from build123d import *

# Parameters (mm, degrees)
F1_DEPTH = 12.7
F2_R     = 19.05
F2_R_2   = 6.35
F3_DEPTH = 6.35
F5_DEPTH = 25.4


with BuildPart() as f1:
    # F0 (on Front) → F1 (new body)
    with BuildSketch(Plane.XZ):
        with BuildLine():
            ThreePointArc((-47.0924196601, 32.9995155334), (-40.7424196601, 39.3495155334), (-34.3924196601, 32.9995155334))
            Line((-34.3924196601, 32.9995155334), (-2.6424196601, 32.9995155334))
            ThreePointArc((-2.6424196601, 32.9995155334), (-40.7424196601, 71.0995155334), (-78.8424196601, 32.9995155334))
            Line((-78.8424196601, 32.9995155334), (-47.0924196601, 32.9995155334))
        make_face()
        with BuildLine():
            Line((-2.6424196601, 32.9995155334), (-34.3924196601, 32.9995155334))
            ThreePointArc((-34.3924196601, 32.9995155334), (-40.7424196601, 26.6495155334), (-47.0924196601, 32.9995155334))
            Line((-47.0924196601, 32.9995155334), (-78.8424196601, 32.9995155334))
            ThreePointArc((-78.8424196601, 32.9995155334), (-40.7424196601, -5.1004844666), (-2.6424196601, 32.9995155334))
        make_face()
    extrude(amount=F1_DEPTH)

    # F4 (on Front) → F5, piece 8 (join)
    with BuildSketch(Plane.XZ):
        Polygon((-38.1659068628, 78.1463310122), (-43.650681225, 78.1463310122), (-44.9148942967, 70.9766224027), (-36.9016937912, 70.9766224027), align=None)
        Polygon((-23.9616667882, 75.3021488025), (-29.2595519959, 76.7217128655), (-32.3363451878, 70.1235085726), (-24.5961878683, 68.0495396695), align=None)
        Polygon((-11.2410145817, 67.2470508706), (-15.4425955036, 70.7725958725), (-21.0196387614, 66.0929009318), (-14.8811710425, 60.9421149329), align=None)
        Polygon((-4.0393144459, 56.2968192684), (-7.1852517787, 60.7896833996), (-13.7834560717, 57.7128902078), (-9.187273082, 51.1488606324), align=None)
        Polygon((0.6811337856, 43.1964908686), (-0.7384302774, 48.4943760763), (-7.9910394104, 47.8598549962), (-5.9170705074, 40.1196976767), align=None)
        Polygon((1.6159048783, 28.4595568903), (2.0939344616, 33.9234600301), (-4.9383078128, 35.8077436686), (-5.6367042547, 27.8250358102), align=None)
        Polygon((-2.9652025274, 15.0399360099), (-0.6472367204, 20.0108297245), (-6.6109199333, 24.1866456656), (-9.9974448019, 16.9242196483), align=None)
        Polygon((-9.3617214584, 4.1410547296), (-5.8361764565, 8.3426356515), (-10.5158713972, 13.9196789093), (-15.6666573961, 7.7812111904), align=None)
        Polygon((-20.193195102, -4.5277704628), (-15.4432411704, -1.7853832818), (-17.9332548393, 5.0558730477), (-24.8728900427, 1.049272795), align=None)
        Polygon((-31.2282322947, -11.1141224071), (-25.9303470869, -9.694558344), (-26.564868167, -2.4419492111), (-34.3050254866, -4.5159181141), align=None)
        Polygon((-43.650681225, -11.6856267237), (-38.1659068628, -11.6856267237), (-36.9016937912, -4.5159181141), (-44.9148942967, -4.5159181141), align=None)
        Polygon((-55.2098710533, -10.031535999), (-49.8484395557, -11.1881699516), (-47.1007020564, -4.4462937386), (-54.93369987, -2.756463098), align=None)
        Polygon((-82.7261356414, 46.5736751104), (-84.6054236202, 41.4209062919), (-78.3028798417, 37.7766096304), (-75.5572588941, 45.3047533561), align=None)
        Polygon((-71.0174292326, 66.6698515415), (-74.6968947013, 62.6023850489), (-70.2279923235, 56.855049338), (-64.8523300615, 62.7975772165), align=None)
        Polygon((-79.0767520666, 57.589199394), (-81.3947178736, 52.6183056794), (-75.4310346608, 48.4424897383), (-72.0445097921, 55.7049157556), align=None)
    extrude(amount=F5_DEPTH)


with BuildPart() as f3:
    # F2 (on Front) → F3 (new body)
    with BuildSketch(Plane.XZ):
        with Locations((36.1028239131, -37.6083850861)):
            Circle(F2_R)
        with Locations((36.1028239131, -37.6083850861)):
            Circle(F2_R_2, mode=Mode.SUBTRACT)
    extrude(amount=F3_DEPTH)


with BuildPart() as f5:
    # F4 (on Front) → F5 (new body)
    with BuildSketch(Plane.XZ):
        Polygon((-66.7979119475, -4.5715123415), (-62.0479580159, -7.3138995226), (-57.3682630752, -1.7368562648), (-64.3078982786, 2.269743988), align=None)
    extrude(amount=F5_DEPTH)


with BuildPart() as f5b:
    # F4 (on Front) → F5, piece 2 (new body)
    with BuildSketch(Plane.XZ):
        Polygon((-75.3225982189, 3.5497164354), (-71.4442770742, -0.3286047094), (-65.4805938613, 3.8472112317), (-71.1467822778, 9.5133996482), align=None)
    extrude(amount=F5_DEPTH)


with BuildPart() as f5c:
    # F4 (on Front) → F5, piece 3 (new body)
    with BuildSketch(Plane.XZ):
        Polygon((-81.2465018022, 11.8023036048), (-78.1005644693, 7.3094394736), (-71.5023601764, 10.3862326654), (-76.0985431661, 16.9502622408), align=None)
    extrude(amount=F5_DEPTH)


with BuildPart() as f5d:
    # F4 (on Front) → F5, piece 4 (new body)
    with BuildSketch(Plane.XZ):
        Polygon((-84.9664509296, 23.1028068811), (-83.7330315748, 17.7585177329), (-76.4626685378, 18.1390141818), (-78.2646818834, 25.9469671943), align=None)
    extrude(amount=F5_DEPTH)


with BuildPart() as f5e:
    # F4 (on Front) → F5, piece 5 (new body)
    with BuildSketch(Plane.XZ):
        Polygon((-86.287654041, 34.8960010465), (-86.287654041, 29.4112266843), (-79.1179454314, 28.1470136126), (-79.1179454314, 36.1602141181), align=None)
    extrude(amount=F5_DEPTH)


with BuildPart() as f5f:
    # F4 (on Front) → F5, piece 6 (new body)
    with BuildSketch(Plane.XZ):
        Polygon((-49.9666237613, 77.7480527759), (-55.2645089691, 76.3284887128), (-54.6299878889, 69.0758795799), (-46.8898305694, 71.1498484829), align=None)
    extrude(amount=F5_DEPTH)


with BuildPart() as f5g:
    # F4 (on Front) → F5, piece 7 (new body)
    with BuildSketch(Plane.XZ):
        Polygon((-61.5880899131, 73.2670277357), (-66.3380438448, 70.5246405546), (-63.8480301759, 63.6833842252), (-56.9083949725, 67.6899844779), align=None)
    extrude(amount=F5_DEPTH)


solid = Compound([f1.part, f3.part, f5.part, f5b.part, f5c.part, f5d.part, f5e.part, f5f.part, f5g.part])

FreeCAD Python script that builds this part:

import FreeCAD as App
import Part
import Sketcher
Q = App.Units.Quantity

doc = App.newDocument("Part")
body = doc.addObject("PartDesign::Body", "Body")

sketch1 = doc.addObject("Sketcher::SketchObject", "Sketch")
body.addObject(sketch1)
sketch1.AttachmentSupport = (doc.XZ_Plane, [""])
sketch1.MapMode = "FlatFace"
sketch1.addGeometry(Part.Circle(App.Vector(-41, 33, 0), App.Vector(0, 0, 1), 38), False)
sketch1.addGeometry(Part.Circle(App.Vector(-41, 33, 0), App.Vector(0, 0, 1), 6), False)
sketch1.addConstraint(Sketcher.Constraint("Coincident", 1, 3, 0, 3))
sketch1.addConstraint(Sketcher.Constraint("Diameter", 0, Q("3 in")))
sketch1.addConstraint(Sketcher.Constraint("Diameter", 1, Q("0.5 in")))
sketch1.addConstraint(Sketcher.Constraint("DistanceX", 0, 3, -1, 1, 40.74242))
sketch1.addConstraint(Sketcher.Constraint("DistanceY", -1, 1, 0, 3, 32.999516))
pad1 = doc.addObject("PartDesign::Pad", "Pad")
body.addObject(pad1)
pad1.Profile = sketch1
pad1.Length = Q("0.5 in")

sketch2 = doc.addObject("Sketcher::SketchObject", "Sketch001")
body.addObject(sketch2)
sketch2.AttachmentSupport = (doc.XZ_Plane, [""])
sketch2.MapMode = "FlatFace"
sketch2.addGeometry(Part.LineSegment(App.Vector(-38.165907, 78.146331, 0), App.Vector(-43.650681, 78.146331, 0)), False)
sketch2.addGeometry(Part.LineSegment(App.Vector(-43.650681, 78.146331, 0), App.Vector(-44.914894, 70.976622, 0)), False)
sketch2.addGeometry(Part.LineSegment(App.Vector(-44.914894, 70.976622, 0), App.Vector(-36.901694, 70.976622, 0)), False)
sketch2.addGeometry(Part.LineSegment(App.Vector(-36.901694, 70.976622, 0), App.Vector(-38.165907, 78.146331, 0)), False)
sketch2.addGeometry(Part.LineSegment(App.Vector(-23.961667, 75.302149, 0), App.Vector(-29.259552, 76.721713, 0)), False)
sketch2.addGeometry(Part.LineSegment(App.Vector(-29.259552, 76.721713, 0), App.Vector(-32.336345, 70.123509, 0)), False)
sketch2.addGeometry(Part.LineSegment(App.Vector(-32.336345, 70.123509, 0), App.Vector(-24.596188, 68.04954, 0)), False)
sketch2.addGeometry(Part.LineSegment(App.Vector(-24.596188, 68.04954, 0), App.Vector(-23.961667, 75.302149, 0)), False)
sketch2.addGeometry(Part.LineSegment(App.Vector(-11.241015, 67.247051, 0), App.Vector(-15.442596, 70.772596, 0)), False)
sketch2.addGeometry(Part.LineSegment(App.Vector(-15.442596, 70.772596, 0), App.Vector(-21.019639, 66.092901, 0)), False)
sketch2.addGeometry(Part.LineSegment(App.Vector(-21.019639, 66.092901, 0), App.Vector(-14.881171, 60.942115, 0)), False)
sketch2.addGeometry(Part.LineSegment(App.Vector(-14.881171, 60.942115, 0), App.Vector(-11.241015, 67.247051, 0)), False)
sketch2.addGeometry(Part.LineSegment(App.Vector(-4.039314, 56.296819, 0), App.Vector(-7.185252, 60.789683, 0)), False)
sketch2.addGeometry(Part.LineSegment(App.Vector(-7.185252, 60.789683, 0), App.Vector(-13.783456, 57.71289, 0)), False)
sketch2.addGeometry(Part.LineSegment(App.Vector(-13.783456, 57.71289, 0), App.Vector(-9.187273, 51.148861, 0)), False)
sketch2.addGeometry(Part.LineSegment(App.Vector(-9.187273, 51.148861, 0), App.Vector(-4.039314, 56.296819, 0)), False)
sketch2.addGeometry(Part.LineSegment(App.Vector(0.681134, 43.196491, 0), App.Vector(-0.73843, 48.494376, 0)), False)
sketch2.addGeometry(Part.LineSegment(App.Vector(-0.73843, 48.494376, 0), App.Vector(-7.991039, 47.859855, 0)), False)
sketch2.addGeometry(Part.LineSegment(App.Vector(-7.991039, 47.859855, 0), App.Vector(-5.917071, 40.119698, 0)), False)
sketch2.addGeometry(Part.LineSegment(App.Vector(-5.917071, 40.119698, 0), App.Vector(0.681134, 43.196491, 0)), False)
sketch2.addGeometry(Part.LineSegment(App.Vector(1.615905, 28.459557, 0), App.Vector(2.093934, 33.92346, 0)), False)
sketch2.addGeometry(Part.LineSegment(App.Vector(2.093934, 33.92346, 0), App.Vector(-4.938308, 35.807744, 0)), False)
sketch2.addGeometry(Part.LineSegment(App.Vector(-4.938308, 35.807744, 0), App.Vector(-5.636704, 27.825036, 0)), False)
sketch2.addGeometry(Part.LineSegment(App.Vector(-5.636704, 27.825036, 0), App.Vector(1.615905, 28.459557, 0)), False)
sketch2.addGeometry(Part.LineSegment(App.Vector(-2.965203, 15.039936, 0), App.Vector(-0.647237, 20.01083, 0)), False)
sketch2.addGeometry(Part.LineSegment(App.Vector(-0.647237, 20.01083, 0), App.Vector(-6.61092, 24.186646, 0)), False)
sketch2.addGeometry(Part.LineSegment(App.Vector(-6.61092, 24.186646, 0), App.Vector(-9.997445, 16.92422, 0)), False)
sketch2.addGeometry(Part.LineSegment(App.Vector(-9.997445, 16.92422, 0), App.Vector(-2.965203, 15.039936, 0)), False)
sketch2.addGeometry(Part.LineSegment(App.Vector(-9.361721, 4.141055, 0), App.Vector(-5.836176, 8.342636, 0)), False)
sketch2.addGeometry(Part.LineSegment(App.Vector(-5.836176, 8.342636, 0), App.Vector(-10.515871, 13.919679, 0)), False)
sketch2.addGeometry(Part.LineSegment(App.Vector(-10.515871, 13.919679, 0), App.Vector(-15.666657, 7.781211, 0)), False)
sketch2.addGeometry(Part.LineSegment(App.Vector(-15.666657, 7.781211, 0), App.Vector(-9.361721, 4.141055, 0)), False)
sketch2.addGeometry(Part.LineSegment(App.Vector(-20.193195, -4.52777, 0), App.Vector(-15.443241, -1.785383, 0)), False)
sketch2.addGeometry(Part.LineSegment(App.Vector(-15.443241, -1.785383, 0), App.Vector(-17.933255, 5.055873, 0)), False)
sketch2.addGeometry(Part.LineSegment(App.Vector(-17.933255, 5.055873, 0), App.Vector(-24.87289, 1.049273, 0)), False)
sketch2.addGeometry(Part.LineSegment(App.Vector(-24.87289, 1.049273, 0), App.Vector(-20.193195, -4.52777, 0)), False)
sketch2.addGeometry(Part.LineSegment(App.Vector(-31.228232, -11.114122, 0), App.Vector(-25.930347, -9.694558, 0)), False)
sketch2.addGeometry(Part.LineSegment(App.Vector(-25.930347, -9.694558, 0), App.Vector(-26.564868, -2.441949, 0)), False)
sketch2.addGeometry(Part.LineSegment(App.Vector(-26.564868, -2.441949, 0), App.Vector(-34.305025, -4.515918, 0)), False)
sketch2.addGeometry(Part.LineSegment(App.Vector(-34.305025, -4.515918, 0), App.Vector(-31.228232, -11.114122, 0)), False)
sketch2.addGeometry(Part.LineSegment(App.Vector(-43.650681, -11.685627, 0), App.Vector(-38.165907, -11.685627, 0)), False)
sketch2.addGeometry(Part.LineSegment(App.Vector(-38.165907, -11.685627, 0), App.Vector(-36.901694, -4.515918, 0)), False)
sketch2.addGeometry(Part.LineSegment(App.Vector(-36.901694, -4.515918, 0), App.Vector(-44.914894, -4.515918, 0)), False)
sketch2.addGeometry(Part.LineSegment(App.Vector(-44.914894, -4.515918, 0), App.Vector(-43.650681, -11.685627, 0)), False)
sketch2.addGeometry(Part.LineSegment(App.Vector(-55.209871, -10.031536, 0), App.Vector(-49.84844, -11.18817, 0)), False)
sketch2.addGeometry(Part.LineSegment(App.Vector(-49.84844, -11.18817, 0), App.Vector(-47.100702, -4.446294, 0)), False)
sketch2.addGeometry(Part.LineSegment(App.Vector(-47.100702, -4.446294, 0), App.Vector(-54.9337, -2.756463, 0)), False)
sketch2.addGeometry(Part.LineSegment(App.Vector(-54.9337, -2.756463, 0), App.Vector(-55.209871, -10.031536, 0)), False)
sketch2.addGeometry(Part.LineSegment(App.Vector(-82.726136, 46.573675, 0), App.Vector(-84.605424, 41.420906, 0)), False)
sketch2.addGeometry(Part.LineSegment(App.Vector(-84.605424, 41.420906, 0), App.Vector(-78.30288, 37.77661, 0)), False)
sketch2.addGeometry(Part.LineSegment(App.Vector(-78.30288, 37.77661, 0), App.Vector(-75.557259, 45.304753, 0)), False)
sketch2.addGeometry(Part.LineSegment(App.Vector(-75.557259, 45.304753, 0), App.Vector(-82.726136, 46.573675, 0)), False)
sketch2.addGeometry(Part.LineSegment(App.Vector(-71.017429, 66.669852, 0), App.Vector(-74.696895, 62.602385, 0)), False)
sketch2.addGeometry(Part.LineSegment(App.Vector(-74.696895, 62.602385, 0), App.Vector(-70.227992, 56.855049, 0)), False)
sketch2.addGeometry(Part.LineSegment(App.Vector(-70.227992, 56.855049, 0), App.Vector(-64.85233, 62.797577, 0)), False)
sketch2.addGeometry(Part.LineSegment(App.Vector(-64.85233, 62.797577, 0), App.Vector(-71.017429, 66.669852, 0)), False)
sketch2.addGeometry(Part.LineSegment(App.Vector(-79.076752, 57.589199, 0), App.Vector(-81.394718, 52.618306, 0)), False)
sketch2.addGeometry(Part.LineSegment(App.Vector(-81.394718, 52.618306, 0), App.Vector(-75.431035, 48.44249, 0)), False)
sketch2.addGeometry(Part.LineSegment(App.Vector(-75.431035, 48.44249, 0), App.Vector(-72.04451, 55.704916, 0)), False)
sketch2.addGeometry(Part.LineSegment(App.Vector(-72.04451, 55.704916, 0), App.Vector(-79.076752, 57.589199, 0)), False)
sketch2.addConstraint(Sketcher.Constraint("Coincident", 0, 2, 1, 1))
sketch2.addConstraint(Sketcher.Constraint("Coincident", 1, 2, 2, 1))
sketch2.addConstraint(Sketcher.Constraint("Coincident", 2, 2, 3, 1))
sketch2.addConstraint(Sketcher.Constraint("Coincident", 3, 2, 0, 1))
sketch2.addConstraint(Sketcher.Constraint("Coincident", 4, 2, 5, 1))
sketch2.addConstraint(Sketcher.Constraint("Coincident", 5, 2, 6, 1))
sketch2.addConstraint(Sketcher.Constraint("Coincident", 6, 2, 7, 1))
sketch2.addConstraint(Sketcher.Constraint("Coincident", 7, 2, 4, 1))
sketch2.addConstraint(Sketcher.Constraint("Coincident", 8, 2, 9, 1))
sketch2.addConstraint(Sketcher.Constraint("Coincident", 9, 2, 10, 1))
sketch2.addConstraint(Sketcher.Constraint("Coincident", 10, 2, 11, 1))
sketch2.addConstraint(Sketcher.Constraint("Coincident", 11, 2, 8, 1))
sketch2.addConstraint(Sketcher.Constraint("Coincident", 12, 2, 13, 1))
sketch2.addConstraint(Sketcher.Constraint("Coincident", 13, 2, 14, 1))
sketch2.addConstraint(Sketcher.Constraint("Coincident", 14, 2, 15, 1))
sketch2.addConstraint(Sketcher.Constraint("Coincident", 15, 2, 12, 1))
sketch2.addConstraint(Sketcher.Constraint("Coincident", 16, 2, 17, 1))
sketch2.addConstraint(Sketcher.Constraint("Coincident", 17, 2, 18, 1))
sketch2.addConstraint(Sketcher.Constraint("Coincident", 18, 2, 19, 1))
sketch2.addConstraint(Sketcher.Constraint("Coincident", 19, 2, 16, 1))
sketch2.addConstraint(Sketcher.Constraint("Coincident", 20, 2, 21, 1))
sketch2.addConstraint(Sketcher.Constraint("Coincident", 21, 2, 22, 1))
sketch2.addConstraint(Sketcher.Constraint("Coincident", 22, 2, 23, 1))
sketch2.addConstraint(Sketcher.Constraint("Coincident", 23, 2, 20, 1))
sketch2.addConstraint(Sketcher.Constraint("Coincident", 24, 2, 25, 1))
sketch2.addConstraint(Sketcher.Constraint("Coincident", 25, 2, 26, 1))
sketch2.addConstraint(Sketcher.Constraint("Coincident", 26, 2, 27, 1))
sketch2.addConstraint(Sketcher.Constraint("Coincident", 27, 2, 24, 1))
sketch2.addConstraint(Sketcher.Constraint("Coincident", 28, 2, 29, 1))
sketch2.addConstraint(Sketcher.Constraint("Coincident", 29, 2, 30, 1))
sketch2.addConstraint(Sketcher.Constraint("Coincident", 30, 2, 31, 1))
sketch2.addConstraint(Sketcher.Constraint("Coincident", 31, 2, 28, 1))
sketch2.addConstraint(Sketcher.Constraint("Coincident", 32, 2, 33, 1))
sketch2.addConstraint(Sketcher.Constraint("Coincident", 33, 2, 34, 1))
sketch2.addConstraint(Sketcher.Constraint("Coincident", 34, 2, 35, 1))
sketch2.addConstraint(Sketcher.Constraint("Coincident", 35, 2, 32, 1))
sketch2.addConstraint(Sketcher.Constraint("Coincident", 36, 2, 37, 1))
sketch2.addConstraint(Sketcher.Constraint("Coincident", 37, 2, 38, 1))
sketch2.addConstraint(Sketcher.Constraint("Coincident", 38, 2, 39, 1))
sketch2.addConstraint(Sketcher.Constraint("Coincident", 39, 2, 36, 1))
sketch2.addConstraint(Sketcher.Constraint("Coincident", 40, 2, 41, 1))
sketch2.addConstraint(Sketcher.Constraint("Coincident", 41, 2, 42, 1))
sketch2.addConstraint(Sketcher.Constraint("Coincident", 42, 2, 43, 1))
sketch2.addConstraint(Sketcher.Constraint("Coincident", 43, 2, 40, 1))
sketch2.addConstraint(Sketcher.Constraint("Coincident", 44, 2, 45, 1))
sketch2.addConstraint(Sketcher.Constraint("Coincident", 45, 2, 46, 1))
sketch2.addConstraint(Sketcher.Constraint("Coincident", 46, 2, 47, 1))
sketch2.addConstraint(Sketcher.Constraint("Coincident", 47, 2, 44, 1))
sketch2.addConstraint(Sketcher.Constraint("Coincident", 48, 2, 49, 1))
sketch2.addConstraint(Sketcher.Constraint("Coincident", 49, 2, 50, 1))
sketch2.addConstraint(Sketcher.Constraint("Coincident", 50, 2, 51, 1))
sketch2.addConstraint(Sketcher.Constraint("Coincident", 51, 2, 48, 1))
sketch2.addConstraint(Sketcher.Constraint("Coincident", 52, 2, 53, 1))
sketch2.addConstraint(Sketcher.Constraint("Coincident", 53, 2, 54, 1))
sketch2.addConstraint(Sketcher.Constraint("Coincident", 54, 2, 55, 1))
sketch2.addConstraint(Sketcher.Constraint("Coincident", 55, 2, 52, 1))
sketch2.addConstraint(Sketcher.Constraint("Coincident", 56, 2, 57, 1))
sketch2.addConstraint(Sketcher.Constraint("Coincident", 57, 2, 58, 1))
sketch2.addConstraint(Sketcher.Constraint("Coincident", 58, 2, 59, 1))
sketch2.addConstraint(Sketcher.Constraint("Coincident", 59, 2, 56, 1))
sketch2.addConstraint(Sketcher.Constraint("Horizontal", 0))
sketch2.addConstraint(Sketcher.Constraint("Horizontal", 2))
sketch2.addConstraint(Sketcher.Constraint("Horizontal", 40))
sketch2.addConstraint(Sketcher.Constraint("Horizontal", 42))
sketch2.addConstraint(Sketcher.Constraint("DistanceX", 2, 1, 2, 2, 8.013201))
sketch2.addConstraint(Sketcher.Constraint("DistanceX", 42, 2, 42, 1, 8.013201))
sketch2.addConstraint(Sketcher.Constraint("DistanceX", 26, 2, -1, 1, Q("0.3936002 in")))
sketch2.addConstraint(Sketcher.Constraint("DistanceX", 7, 2, 10, 2, Q("0.3574998 in")))
sketch2.addConstraint(Sketcher.Constraint("DistanceX", 24, 2, 23, 2, Q("0.0891001 in")))
sketch2.addConstraint(Sketcher.Constraint("DistanceY", 33, 2, 28, 2, Q("0.1294001 in")))
sketch2.addConstraint(Sketcher.Constraint("DistanceY", 40, 2, 39, 2, Q("0.0225002 in")))
sketch2.addConstraint(Sketcher.Constraint("Distance", 6, 8.013201))
sketch2.addConstraint(Sketcher.Constraint("Distance", 10, 8.013201))
sketch2.addConstraint(Sketcher.Constraint("Distance", 14, 8.013201))
sketch2.addConstraint(Sketcher.Constraint("Distance", 18, 8.013201))
sketch2.addConstraint(Sketcher.Constraint("Distance", 22, 8.013201))
sketch2.addConstraint(Sketcher.Constraint("Distance", 26, 8.013201))
sketch2.addConstraint(Sketcher.Constraint("Distance", 30, 8.013201))
sketch2.addConstraint(Sketcher.Constraint("Distance", 34, 8.013201))
sketch2.addConstraint(Sketcher.Constraint("Distance", 38, 8.013201))
sketch2.addConstraint(Sketcher.Constraint("Distance", 46, 8.013201))
sketch2.addConstraint(Sketcher.Constraint("Distance", 50, 8.013201))
sketch2.addConstraint(Sketcher.Constraint("Distance", 54, 8.013201))
sketch2.addConstraint(Sketcher.Constraint("Distance", 58, 8.013201))
sketch2.addConstraint(Sketcher.Constraint("DistanceY", -1, 1, 9, 2, 66.092901))
sketch2.addConstraint(Sketcher.Constraint("DistanceX", 46, 2, -1, 1, 54.9337))
sketch2.addConstraint(Sketcher.Constraint("DistanceY", -1, 1, 59, 2, 57.589199))
sketch2.addConstraint(Sketcher.Constraint("DistanceX", 2, 2, 8, 2, 21.459098))
sketch2.addConstraint(Sketcher.Constraint("DistanceX", 11, 2, 15, 2, 7.2017))
sketch2.addConstraint(Sketcher.Constraint("DistanceX", 19, 2, 20, 2, 1.412801))
sketch2.addConstraint(Sketcher.Constraint("DistanceY", 20, 2, 14, 2, 17.225401))
sketch2.addConstraint(Sketcher.Constraint("DistanceY", 25, 2, 21, 2, 11.621098))
sketch2.addConstraint(Sketcher.Constraint("DistanceX", 22, 2, 27, 2, 2.671502))
sketch2.addConstraint(Sketcher.Constraint("DistanceY", 27, 2, 22, 2, 12.7851))
sketch2.addConstraint(Sketcher.Constraint("DistanceY", 28, 2, 27, 2, 6.6973))
sketch2.addConstraint(Sketcher.Constraint("DistanceY", 34, 2, 33, 2, 4.0066))
sketch2.addConstraint(Sketcher.Constraint("DistanceY", 40, 2, 34, 2, 12.7349))
sketch2.addConstraint(Sketcher.Constraint("DistanceX", 52, 2, 1, 2, 29.782))
sketch2.addConstraint(Sketcher.Constraint("DistanceX", 55, 2, 54, 2, 6.165099))
sketch2.addConstraint(Sketcher.Constraint("DistanceY", 50, 2, 55, 2, 21.365098))
sketch2.addConstraint(Sketcher.Constraint("DistanceY", 48, 2, 56, 2, 11.197399))
sketch2.addConstraint(Sketcher.Constraint("DistanceX", 51, 2, 57, 2, 7.295101))
sketch2.addConstraint(Sketcher.Constraint("DistanceX", 0, 2, 0, 1, 5.484774))
sketch2.addConstraint(Sketcher.Constraint("DistanceX", 40, 1, 40, 2, 5.484774))
sketch2.addConstraint(Sketcher.Constraint("DistanceX", 0, 2, -1, 1, 43.650681))
sketch2.addConstraint(Sketcher.Constraint("DistanceY", -1, 1, 0, 2, 78.146331))
sketch2.addConstraint(Sketcher.Constraint("DistanceX", 4, 2, -1, 1, 29.259552))
sketch2.addConstraint(Sketcher.Constraint("DistanceY", -1, 1, 5, 2, 70.123509))
sketch2.addConstraint(Sketcher.Constraint("DistanceY", -1, 1, 6, 2, 68.04954))
sketch2.addConstraint(Sketcher.Constraint("DistanceY", -1, 1, 7, 2, 75.302149))
sketch2.addConstraint(Sketcher.Constraint("DistanceX", 9, 2, -1, 1, 21.019639))
sketch2.addConstraint(Sketcher.Constraint("DistanceX", 10, 2, -1, 1, 14.881171))
sketch2.addConstraint(Sketcher.Constraint("DistanceY", -1, 1, 11, 2, 67.247051))
sketch2.addConstraint(Sketcher.Constraint("DistanceX", 12, 2, -1, 1, 7.185252))
sketch2.addConstraint(Sketcher.Constraint("DistanceY", -1, 1, 13, 2, 57.71289))
sketch2.addConstraint(Sketcher.Constraint("DistanceY", -1, 1, 14, 2, 51.148861))
sketch2.addConstraint(Sketcher.Constraint("DistanceY", -1, 1, 15, 2, 56.296819))
sketch2.addConstraint(Sketcher.Constraint("DistanceX", 16, 2, -1, 1, 0.73843))
sketch2.addConstraint(Sketcher.Constraint("DistanceX", 17, 2, -1, 1, 7.991039))
sketch2.addConstraint(Sketcher.Constraint("DistanceX", 18, 2, -1, 1, 5.917071))
sketch2.addConstraint(Sketcher.Constraint("DistanceY", -1, 1, 19, 2, 43.196491))
sketch2.addConstraint(Sketcher.Constraint("DistanceY", -1, 1, 24, 2, 20.01083))
sketch2.addConstraint(Sketcher.Constraint("DistanceX", 25, 2, -1, 1, 6.61092))
sketch2.addConstraint(Sketcher.Constraint("DistanceY", -1, 1, 26, 2, 16.92422))
sketch2.addConstraint(Sketcher.Constraint("DistanceX", 29, 2, -1, 1, 10.515871))
sketch2.addConstraint(Sketcher.Constraint("DistanceY", -1, 1, 29, 2, 13.919679))
sketch2.addConstraint(Sketcher.Constraint("DistanceY", -1, 1, 30, 2, 7.781211))
sketch2.addConstraint(Sketcher.Constraint("DistanceX", 31, 2, -1, 1, 9.361721))
sketch2.addConstraint(Sketcher.Constraint("DistanceX", 32, 2, -1, 1, 15.443241))
sketch2.addConstraint(Sketcher.Constraint("DistanceX", 34, 2, -1, 1, 24.87289))
sketch2.addConstraint(Sketcher.Constraint("DistanceY", 35, 2, -1, 1, 4.52777))
sketch2.addConstraint(Sketcher.Constraint("DistanceY", 36, 2, -1, 1, 9.694558))
sketch2.addConstraint(Sketcher.Constraint("DistanceX", 37, 2, -1, 1, 26.564868))
sketch2.addConstraint(Sketcher.Constraint("DistanceY", 37, 2, -1, 1, 2.441949))
sketch2.addConstraint(Sketcher.Constraint("DistanceY", 38, 2, -1, 1, 4.515918))
sketch2.addConstraint(Sketcher.Constraint("DistanceY", 41, 2, -1, 1, 4.515918))
sketch2.addConstraint(Sketcher.Constraint("DistanceX", 43, 2, -1, 1, 43.650681))
sketch2.addConstraint(Sketcher.Constraint("DistanceX", 44, 2, -1, 1, 49.84844))
sketch2.addConstraint(Sketcher.Constraint("DistanceY", 44, 2, -1, 1, 11.18817))
sketch2.addConstraint(Sketcher.Constraint("DistanceX", 47, 2, -1, 1, 55.209871))
sketch2.addConstraint(Sketcher.Constraint("DistanceX", 49, 2, -1, 1, 78.30288))
sketch2.addConstraint(Sketcher.Constraint("DistanceY", -1, 1, 49, 2, 37.77661))
sketch2.addConstraint(Sketcher.Constraint("DistanceX", 50, 2, -1, 1, 75.557259))
sketch2.addConstraint(Sketcher.Constraint("DistanceY", -1, 1, 53, 2, 56.855049))
sketch2.addConstraint(Sketcher.Constraint("DistanceX", 54, 2, -1, 1, 64.85233))
sketch2.addConstraint(Sketcher.Constraint("DistanceY", -1, 1, 57, 2, 48.44249))
sketch2.addConstraint(Sketcher.Constraint("DistanceX", 58, 2, -1, 1, 72.04451))
sketch2.addConstraint(Sketcher.Constraint("DistanceY", 1, 2, 0, 2, 7.169709))
sketch2.addConstraint(Sketcher.Constraint("DistanceY", 4, 2, 3, 2, 1.424618))
sketch2.addConstraint(Sketcher.Constraint("DistanceX", 2, 2, 4, 2, 7.642142))
sketch2.addConstraint(Sketcher.Constraint("DistanceX", 2, 2, 5, 2, 4.565349))
sketch2.addConstraint(Sketcher.Constraint("DistanceY", 10, 2, 8, 2, 9.830481))
sketch2.addConstraint(Sketcher.Constraint("DistanceX", 8, 2, 11, 2, 4.201581))
sketch2.addConstraint(Sketcher.Constraint("DistanceY", 12, 2, 10, 2, 0.152432))
sketch2.addConstraint(Sketcher.Constraint("DistanceX", 13, 2, 11, 2, 2.542441))
sketch2.addConstraint(Sketcher.Constraint("DistanceY", 16, 2, 10, 2, 12.447739))
sketch2.addConstraint(Sketcher.Constraint("DistanceY", 17, 2, 16, 2, 0.634521))
sketch2.addConstraint(Sketcher.Constraint("DistanceX", 15, 2, 19, 2, 4.720448))
sketch2.addConstraint(Sketcher.Constraint("DistanceX", 21, 2, 19, 2, 5.619442))
sketch2.addConstraint(Sketcher.Constraint("DistanceX", 22, 2, 20, 2, 7.730639))
sketch2.addConstraint(Sketcher.Constraint("DistanceX", 23, 2, 20, 2, 0.47803))
sketch2.addConstraint(Sketcher.Constraint("DistanceY", 22, 2, 23, 2, 0.634521))
sketch2.addConstraint(Sketcher.Constraint("DistanceX", 26, 2, 28, 2, 4.161268))
sketch2.addConstraint(Sketcher.Constraint("DistanceY", 31, 2, 28, 2, 4.201581))
sketch2.addConstraint(Sketcher.Constraint("DistanceY", 32, 2, 31, 2, 5.926438))
sketch2.addConstraint(Sketcher.Constraint("DistanceX", 35, 2, 33, 2, 2.25994))
sketch2.addConstraint(Sketcher.Constraint("DistanceX", 36, 2, 35, 2, 5.737152))
sketch2.addConstraint(Sketcher.Constraint("DistanceX", 41, 2, 38, 2, 2.596668))
sketch2.addConstraint(Sketcher.Constraint("DistanceX", 41, 2, 39, 2, 5.673461))
sketch2.addConstraint(Sketcher.Constraint("DistanceX", 45, 2, 43, 2, 3.450021))
sketch2.addConstraint(Sketcher.Constraint("DistanceY", 43, 2, 47, 2, 1.654091))
sketch2.addConstraint(Sketcher.Constraint("DistanceX", 48, 2, 1, 2, 39.690529))
sketch2.addConstraint(Sketcher.Constraint("DistanceY", 46, 2, 48, 2, 44.177369))
sketch2.addConstraint(Sketcher.Constraint("DistanceY", 48, 2, 51, 2, 5.152769))
sketch2.addConstraint(Sketcher.Constraint("DistanceY", 50, 2, 51, 2, 1.268922))
sketch2.addConstraint(Sketcher.Constraint("DistanceX", 51, 2, 1, 2, 37.811241))
sketch2.addConstraint(Sketcher.Constraint("DistanceY", 50, 2, 52, 2, 17.297632))
sketch2.addConstraint(Sketcher.Constraint("DistanceX", 48, 2, 53, 2, 14.377431))
sketch2.addConstraint(Sketcher.Constraint("DistanceX", 56, 2, 50, 2, 5.837459))
sketch2.addConstraint(Sketcher.Constraint("DistanceX", 59, 2, 53, 2, 8.84876))
pad2 = doc.addObject("PartDesign::Pad", "Pad001")
body.addObject(pad2)
pad2.Profile = sketch2
pad2.Length = Q("1 in")
body2 = doc.addObject("PartDesign::Body", "Body001")

sketch3 = doc.addObject("Sketcher::SketchObject", "Sketch002")
body2.addObject(sketch3)
sketch3.AttachmentSupport = (doc.getObject("XZ_Plane001"), [""])
sketch3.MapMode = "FlatFace"
sketch3.addGeometry(Part.Circle(App.Vector(36, -38, 0), App.Vector(0, 0, 1), 19), False)
sketch3.addGeometry(Part.Circle(App.Vector(36, -38, 0), App.Vector(0, 0, 1), 6), False)
sketch3.addConstraint(Sketcher.Constraint("Coincident", 1, 3, 0, 3))
sketch3.addConstraint(Sketcher.Constraint("Diameter", 0, Q("1.5 in")))
sketch3.addConstraint(Sketcher.Constraint("Diameter", 1, Q("0.5 in")))
sketch3.addConstraint(Sketcher.Constraint("DistanceX", -1, 1, 0, 3, 36.102824))
sketch3.addConstraint(Sketcher.Constraint("DistanceY", 0, 3, -1, 1, 37.608385))
pad3 = doc.addObject("PartDesign::Pad", "Pad002")
body2.addObject(pad3)
pad3.Profile = sketch3
pad3.Length = Q("0.25 in")
body3 = doc.addObject("PartDesign::Body", "Body002")

sketch4 = doc.addObject("Sketcher::SketchObject", "Sketch003")
body3.addObject(sketch4)
sketch4.AttachmentSupport = (doc.getObject("XZ_Plane002"), [""])
sketch4.MapMode = "FlatFace"
sketch4.addGeometry(Part.LineSegment(App.Vector(-67, -5, 0), App.Vector(-62, -7, 0)), False)
sketch4.addGeometry(Part.LineSegment(App.Vector(-62, -7, 0), App.Vector(-57, -2, 0)), False)
sketch4.addGeometry(Part.LineSegment(App.Vector(-57, -2, 0), App.Vector(-64, 2, 0)), False)
sketch4.addGeometry(Part.LineSegment(App.Vector(-64, 2, 0), App.Vector(-67, -5, 0)), False)
sketch4.addConstraint(Sketcher.Constraint("Coincident", 0, 2, 1, 1))
sketch4.addConstraint(Sketcher.Constraint("Coincident", 1, 2, 2, 1))
sketch4.addConstraint(Sketcher.Constraint("Coincident", 2, 2, 3, 1))
sketch4.addConstraint(Sketcher.Constraint("Coincident", 3, 2, 0, 1))
sketch4.addConstraint(Sketcher.Constraint("Parallel", 0, 2))
sketch4.addConstraint(Sketcher.Constraint("Equal", 1, 3))
sketch4.addConstraint(Sketcher.Constraint("Angle", 0, Q("-30 deg")))
sketch4.addConstraint(Sketcher.Constraint("Angle", 1, Q("50 deg")))
sketch4.addConstraint(Sketcher.Constraint("Distance", 2, 8.013201))
sketch4.addConstraint(Sketcher.Constraint("DistanceY", 0, 2, -1, 1, 7.3139))
sketch4.addConstraint(Sketcher.Constraint("DistanceX", 2, 2, -1, 1, 64.307898))
sketch4.addConstraint(Sketcher.Constraint("DistanceX", 0, 2, -1, 1, 62.047958))
pad4 = doc.addObject("PartDesign::Pad", "Pad003")
body3.addObject(pad4)
pad4.Profile = sketch4
pad4.Length = Q("1 in")
body4 = doc.addObject("PartDesign::Body", "Body003")

sketch5 = doc.addObject("Sketcher::SketchObject", "Sketch004")
body4.addObject(sketch5)
sketch5.AttachmentSupport = (doc.getObject("XZ_Plane003"), [""])
sketch5.MapMode = "FlatFace"
sketch5.addGeometry(Part.LineSegment(App.Vector(-75, 4, 0), App.Vector(-71, 0, 0)), False)
sketch5.addGeometry(Part.LineSegment(App.Vector(-71, 0, 0), App.Vector(-65, 4, 0)), False)
sketch5.addGeometry(Part.LineSegment(App.Vector(-65, 4, 0), App.Vector(-71, 10, 0)), False)
sketch5.addGeometry(Part.LineSegment(App.Vector(-71, 10, 0), App.Vector(-75, 4, 0)), False)
sketch5.addConstraint(Sketcher.Constraint("Coincident", 0, 2, 1, 1))
sketch5.addConstraint(Sketcher.Constraint("Coincident", 1, 2, 2, 1))
sketch5.addConstraint(Sketcher.Constraint("Coincident", 2, 2, 3, 1))
sketch5.addConstraint(Sketcher.Constraint("Coincident", 3, 2, 0, 1))
sketch5.addConstraint(Sketcher.Constraint("Parallel", 0, 2))
sketch5.addConstraint(Sketcher.Constraint("Equal", 1, 3))
sketch5.addConstraint(Sketcher.Constraint("Angle", 0, Q("-45 deg")))
sketch5.addConstraint(Sketcher.Constraint("Angle", 1, Q("35 deg")))
sketch5.addConstraint(Sketcher.Constraint("Distance", 2, 8.013201))
sketch5.addConstraint(Sketcher.Constraint("DistanceY", -1, 1, 2, 2, 9.5134))
sketch5.addConstraint(Sketcher.Constraint("DistanceX", 3, 2, -1, 1, 75.322598))
sketch5.addConstraint(Sketcher.Constraint("DistanceX", 3, 2, 0, 2, 3.878321))
pad5 = doc.addObject("PartDesign::Pad", "Pad004")
body4.addObject(pad5)
pad5.Profile = sketch5
pad5.Length = Q("1 in")
body5 = doc.addObject("PartDesign::Body", "Body004")

sketch6 = doc.addObject("Sketcher::SketchObject", "Sketch005")
body5.addObject(sketch6)
sketch6.AttachmentSupport = (doc.getObject("XZ_Plane004"), [""])
sketch6.MapMode = "FlatFace"
sketch6.addGeometry(Part.LineSegment(App.Vector(-81, 12, 0), App.Vector(-78, 7, 0)), False)
sketch6.addGeometry(Part.LineSegment(App.Vector(-78, 7, 0), App.Vector(-72, 10, 0)), False)
sketch6.addGeometry(Part.LineSegment(App.Vector(-72, 10, 0), App.Vector(-76, 17, 0)), False)
sketch6.addGeometry(Part.LineSegment(App.Vector(-76, 17, 0), App.Vector(-81, 12, 0)), False)
sketch6.addConstraint(Sketcher.Constraint("Coincident", 0, 2, 1, 1))
sketch6.addConstraint(Sketcher.Constraint("Coincident", 1, 2, 2, 1))
sketch6.addConstraint(Sketcher.Constraint("Coincident", 2, 2, 3, 1))
sketch6.addConstraint(Sketcher.Constraint("Coincident", 3, 2, 0, 1))
sketch6.addConstraint(Sketcher.Constraint("Parallel", 0, 2))
sketch6.addConstraint(Sketcher.Constraint("Equal", 1, 3))
sketch6.addConstraint(Sketcher.Constraint("Angle", 0, Q("-55 deg")))
sketch6.addConstraint(Sketcher.Constraint("Angle", 1, Q("25 deg")))
sketch6.addConstraint(Sketcher.Constraint("Distance", 2, 8.013201))
sketch6.addConstraint(Sketcher.Constraint("DistanceX", 3, 2, -1, 1, 81.246502))
sketch6.addConstraint(Sketcher.Constraint("DistanceY", -1, 1, 0, 2, 7.309439))
sketch6.addConstraint(Sketcher.Constraint("DistanceX", 1, 2, -1, 1, 71.50236))
pad6 = doc.addObject("PartDesign::Pad", "Pad005")
body5.addObject(pad6)
pad6.Profile = sketch6
pad6.Length = Q("1 in")
body6 = doc.addObject("PartDesign::Body", "Body005")

sketch7 = doc.addObject("Sketcher::SketchObject", "Sketch006")
body6.addObject(sketch7)
sketch7.AttachmentSupport = (doc.getObject("XZ_Plane005"), [""])
sketch7.MapMode = "FlatFace"
sketch7.addGeometry(Part.LineSegment(App.Vector(-85, 23, 0), App.Vector(-84, 18, 0)), False)
sketch7.addGeometry(Part.LineSegment(App.Vector(-84, 18, 0), App.Vector(-76, 18, 0)), False)
sketch7.addGeometry(Part.LineSegment(App.Vector(-76, 18, 0), App.Vector(-78, 26, 0)), False)
sketch7.addGeometry(Part.LineSegment(App.Vector(-78, 26, 0), App.Vector(-85, 23, 0)), False)
sketch7.addConstraint(Sketcher.Constraint("Coincident", 0, 2, 1, 1))
sketch7.addConstraint(Sketcher.Constraint("Coincident", 1, 2, 2, 1))
sketch7.addConstraint(Sketcher.Constraint("Coincident", 2, 2, 3, 1))
sketch7.addConstraint(Sketcher.Constraint("Coincident", 3, 2, 0, 1))
sketch7.addConstraint(Sketcher.Constraint("Parallel", 0, 2))
sketch7.addConstraint(Sketcher.Constraint("Equal", 1, 3))
sketch7.addConstraint(Sketcher.Constraint("Distance", 2, 8.013201))
sketch7.addConstraint(Sketcher.Constraint("DistanceX", 0, 2, -1, 1, 83.733032))
sketch7.addConstraint(Sketcher.Constraint("DistanceX", 1, 2, -1, 1, 76.462669))
sketch7.addConstraint(Sketcher.Constraint("DistanceX", 2, 2, -1, 1, 78.264682))
sketch7.addConstraint(Sketcher.Constraint("DistanceX", 3, 2, -1, 1, 84.966451))
sketch7.addConstraint(Sketcher.Constraint("DistanceY", -1, 1, 0, 2, 17.758518))
pad7 = doc.addObject("PartDesign::Pad", "Pad006")
body6.addObject(pad7)
pad7.Profile = sketch7
pad7.Length = Q("1 in")
body7 = doc.addObject("PartDesign::Body", "Body006")

sketch8 = doc.addObject("Sketcher::SketchObject", "Sketch007")
body7.addObject(sketch8)
sketch8.AttachmentSupport = (doc.getObject("XZ_Plane006"), [""])
sketch8.MapMode = "FlatFace"
sketch8.addGeometry(Part.LineSegment(App.Vector(-86, 35, 0), App.Vector(-86, 29, 0)), False)
sketch8.addGeometry(Part.LineSegment(App.Vector(-86, 29, 0), App.Vector(-79, 28, 0)), False)
sketch8.addGeometry(Part.LineSegment(App.Vector(-79, 28, 0), App.Vector(-79, 36, 0)), False)
sketch8.addGeometry(Part.LineSegment(App.Vector(-79, 36, 0), App.Vector(-86, 35, 0)), False)
sketch8.addConstraint(Sketcher.Constraint("Coincident", 0, 2, 1, 1))
sketch8.addConstraint(Sketcher.Constraint("Coincident", 1, 2, 2, 1))
sketch8.addConstraint(Sketcher.Constraint("Coincident", 2, 2, 3, 1))
sketch8.addConstraint(Sketcher.Constraint("Coincident", 3, 2, 0, 1))
sketch8.addConstraint(Sketcher.Constraint("Vertical", 0))
sketch8.addConstraint(Sketcher.Constraint("Vertical", 2))
sketch8.addConstraint(Sketcher.Constraint("Equal", 1, 3))
sketch8.addConstraint(Sketcher.Constraint("Angle", 1, Q("-10 deg")))
sketch8.addConstraint(Sketcher.Constraint("DistanceY", 2, 1, 2, 2, 8.013201))
sketch8.addConstraint(Sketcher.Constraint("DistanceY", -1, 1, 3, 2, 34.896001))
sketch8.addConstraint(Sketcher.Constraint("DistanceY", 0, 2, 0, 1, 5.484774))
sketch8.addConstraint(Sketcher.Constraint("DistanceX", 0, 2, -1, 1, 86.287654))
pad8 = doc.addObject("PartDesign::Pad", "Pad007")
body7.addObject(pad8)
pad8.Profile = sketch8
pad8.Length = Q("1 in")
body8 = doc.addObject("PartDesign::Body", "Body007")

sketch9 = doc.addObject("Sketcher::SketchObject", "Sketch008")
body8.addObject(sketch9)
sketch9.AttachmentSupport = (doc.getObject("XZ_Plane007"), [""])
sketch9.MapMode = "FlatFace"
sketch9.addGeometry(Part.LineSegment(App.Vector(-50, 78, 0), App.Vector(-55, 76, 0)), False)
sketch9.addGeometry(Part.LineSegment(App.Vector(-55, 76, 0), App.Vector(-55, 69, 0)), False)
sketch9.addGeometry(Part.LineSegment(App.Vector(-55, 69, 0), App.Vector(-47, 71, 0)), False)
sketch9.addGeometry(Part.LineSegment(App.Vector(-47, 71, 0), App.Vector(-50, 78, 0)), False)
sketch9.addConstraint(Sketcher.Constraint("Coincident", 0, 2, 1, 1))
sketch9.addConstraint(Sketcher.Constraint("Coincident", 1, 2, 2, 1))
sketch9.addConstraint(Sketcher.Constraint("Coincident", 2, 2, 3, 1))
sketch9.addConstraint(Sketcher.Constraint("Coincident", 3, 2, 0, 1))
sketch9.addConstraint(Sketcher.Constraint("Parallel", 0, 2))
sketch9.addConstraint(Sketcher.Constraint("Equal", 1, 3))
sketch9.addConstraint(Sketcher.Constraint("Angle", 0, Q("-165 deg")))
sketch9.addConstraint(Sketcher.Constraint("Angle", 1, Q("-85 deg")))
sketch9.addConstraint(Sketcher.Constraint("Distance", 2, 8.013201))
sketch9.addConstraint(Sketcher.Constraint("DistanceX", 0, 2, -1, 1, 55.264509))
sketch9.addConstraint(Sketcher.Constraint("DistanceY", -1, 1, 0, 2, 76.328489))
sketch9.addConstraint(Sketcher.Constraint("DistanceY", -1, 1, 1, 2, 69.07588))
pad9 = doc.addObject("PartDesign::Pad", "Pad008")
body8.addObject(pad9)
pad9.Profile = sketch9
pad9.Length = Q("1 in")
body9 = doc.addObject("PartDesign::Body", "Body008")

sketch10 = doc.addObject("Sketcher::SketchObject", "Sketch009")
body9.addObject(sketch10)
sketch10.AttachmentSupport = (doc.getObject("XZ_Plane008"), [""])
sketch10.MapMode = "FlatFace"
sketch10.addGeometry(Part.LineSegment(App.Vector(-62, 73, 0), App.Vector(-66, 71, 0)), False)
sketch10.addGeometry(Part.LineSegment(App.Vector(-66, 71, 0), App.Vector(-64, 64, 0)), False)
sketch10.addGeometry(Part.LineSegment(App.Vector(-64, 64, 0), App.Vector(-57, 68, 0)), False)
sketch10.addGeometry(Part.LineSegment(App.Vector(-57, 68, 0), App.Vector(-62, 73, 0)), False)
sketch10.addConstraint(Sketcher.Constraint("Coincident", 0, 2, 1, 1))
sketch10.addConstraint(Sketcher.Constraint("Coincident", 1, 2, 2, 1))
sketch10.addConstraint(Sketcher.Constraint("Coincident", 2, 2, 3, 1))
sketch10.addConstraint(Sketcher.Constraint("Coincident", 3, 2, 0, 1))
sketch10.addConstraint(Sketcher.Constraint("Parallel", 0, 2))
sketch10.addConstraint(Sketcher.Constraint("Equal", 1, 3))
sketch10.addConstraint(Sketcher.Constraint("Angle", 0, Q("-150 deg")))
sketch10.addConstraint(Sketcher.Constraint("Angle", 1, Q("-70 deg")))
sketch10.addConstraint(Sketcher.Constraint("Distance", 2, 8.013201))
sketch10.addConstraint(Sketcher.Constraint("DistanceY", -1, 1, 0, 2, 70.524641))
sketch10.addConstraint(Sketcher.Constraint("DistanceX", 1, 2, -1, 1, 63.84803))
sketch10.addConstraint(Sketcher.Constraint("DistanceX", 3, 2, -1, 1, 61.58809))
pad10 = doc.addObject("PartDesign::Pad", "Pad009")
body9.addObject(pad10)
pad10.Profile = sketch10
pad10.Length = Q("1 in")

doc.recompute()
